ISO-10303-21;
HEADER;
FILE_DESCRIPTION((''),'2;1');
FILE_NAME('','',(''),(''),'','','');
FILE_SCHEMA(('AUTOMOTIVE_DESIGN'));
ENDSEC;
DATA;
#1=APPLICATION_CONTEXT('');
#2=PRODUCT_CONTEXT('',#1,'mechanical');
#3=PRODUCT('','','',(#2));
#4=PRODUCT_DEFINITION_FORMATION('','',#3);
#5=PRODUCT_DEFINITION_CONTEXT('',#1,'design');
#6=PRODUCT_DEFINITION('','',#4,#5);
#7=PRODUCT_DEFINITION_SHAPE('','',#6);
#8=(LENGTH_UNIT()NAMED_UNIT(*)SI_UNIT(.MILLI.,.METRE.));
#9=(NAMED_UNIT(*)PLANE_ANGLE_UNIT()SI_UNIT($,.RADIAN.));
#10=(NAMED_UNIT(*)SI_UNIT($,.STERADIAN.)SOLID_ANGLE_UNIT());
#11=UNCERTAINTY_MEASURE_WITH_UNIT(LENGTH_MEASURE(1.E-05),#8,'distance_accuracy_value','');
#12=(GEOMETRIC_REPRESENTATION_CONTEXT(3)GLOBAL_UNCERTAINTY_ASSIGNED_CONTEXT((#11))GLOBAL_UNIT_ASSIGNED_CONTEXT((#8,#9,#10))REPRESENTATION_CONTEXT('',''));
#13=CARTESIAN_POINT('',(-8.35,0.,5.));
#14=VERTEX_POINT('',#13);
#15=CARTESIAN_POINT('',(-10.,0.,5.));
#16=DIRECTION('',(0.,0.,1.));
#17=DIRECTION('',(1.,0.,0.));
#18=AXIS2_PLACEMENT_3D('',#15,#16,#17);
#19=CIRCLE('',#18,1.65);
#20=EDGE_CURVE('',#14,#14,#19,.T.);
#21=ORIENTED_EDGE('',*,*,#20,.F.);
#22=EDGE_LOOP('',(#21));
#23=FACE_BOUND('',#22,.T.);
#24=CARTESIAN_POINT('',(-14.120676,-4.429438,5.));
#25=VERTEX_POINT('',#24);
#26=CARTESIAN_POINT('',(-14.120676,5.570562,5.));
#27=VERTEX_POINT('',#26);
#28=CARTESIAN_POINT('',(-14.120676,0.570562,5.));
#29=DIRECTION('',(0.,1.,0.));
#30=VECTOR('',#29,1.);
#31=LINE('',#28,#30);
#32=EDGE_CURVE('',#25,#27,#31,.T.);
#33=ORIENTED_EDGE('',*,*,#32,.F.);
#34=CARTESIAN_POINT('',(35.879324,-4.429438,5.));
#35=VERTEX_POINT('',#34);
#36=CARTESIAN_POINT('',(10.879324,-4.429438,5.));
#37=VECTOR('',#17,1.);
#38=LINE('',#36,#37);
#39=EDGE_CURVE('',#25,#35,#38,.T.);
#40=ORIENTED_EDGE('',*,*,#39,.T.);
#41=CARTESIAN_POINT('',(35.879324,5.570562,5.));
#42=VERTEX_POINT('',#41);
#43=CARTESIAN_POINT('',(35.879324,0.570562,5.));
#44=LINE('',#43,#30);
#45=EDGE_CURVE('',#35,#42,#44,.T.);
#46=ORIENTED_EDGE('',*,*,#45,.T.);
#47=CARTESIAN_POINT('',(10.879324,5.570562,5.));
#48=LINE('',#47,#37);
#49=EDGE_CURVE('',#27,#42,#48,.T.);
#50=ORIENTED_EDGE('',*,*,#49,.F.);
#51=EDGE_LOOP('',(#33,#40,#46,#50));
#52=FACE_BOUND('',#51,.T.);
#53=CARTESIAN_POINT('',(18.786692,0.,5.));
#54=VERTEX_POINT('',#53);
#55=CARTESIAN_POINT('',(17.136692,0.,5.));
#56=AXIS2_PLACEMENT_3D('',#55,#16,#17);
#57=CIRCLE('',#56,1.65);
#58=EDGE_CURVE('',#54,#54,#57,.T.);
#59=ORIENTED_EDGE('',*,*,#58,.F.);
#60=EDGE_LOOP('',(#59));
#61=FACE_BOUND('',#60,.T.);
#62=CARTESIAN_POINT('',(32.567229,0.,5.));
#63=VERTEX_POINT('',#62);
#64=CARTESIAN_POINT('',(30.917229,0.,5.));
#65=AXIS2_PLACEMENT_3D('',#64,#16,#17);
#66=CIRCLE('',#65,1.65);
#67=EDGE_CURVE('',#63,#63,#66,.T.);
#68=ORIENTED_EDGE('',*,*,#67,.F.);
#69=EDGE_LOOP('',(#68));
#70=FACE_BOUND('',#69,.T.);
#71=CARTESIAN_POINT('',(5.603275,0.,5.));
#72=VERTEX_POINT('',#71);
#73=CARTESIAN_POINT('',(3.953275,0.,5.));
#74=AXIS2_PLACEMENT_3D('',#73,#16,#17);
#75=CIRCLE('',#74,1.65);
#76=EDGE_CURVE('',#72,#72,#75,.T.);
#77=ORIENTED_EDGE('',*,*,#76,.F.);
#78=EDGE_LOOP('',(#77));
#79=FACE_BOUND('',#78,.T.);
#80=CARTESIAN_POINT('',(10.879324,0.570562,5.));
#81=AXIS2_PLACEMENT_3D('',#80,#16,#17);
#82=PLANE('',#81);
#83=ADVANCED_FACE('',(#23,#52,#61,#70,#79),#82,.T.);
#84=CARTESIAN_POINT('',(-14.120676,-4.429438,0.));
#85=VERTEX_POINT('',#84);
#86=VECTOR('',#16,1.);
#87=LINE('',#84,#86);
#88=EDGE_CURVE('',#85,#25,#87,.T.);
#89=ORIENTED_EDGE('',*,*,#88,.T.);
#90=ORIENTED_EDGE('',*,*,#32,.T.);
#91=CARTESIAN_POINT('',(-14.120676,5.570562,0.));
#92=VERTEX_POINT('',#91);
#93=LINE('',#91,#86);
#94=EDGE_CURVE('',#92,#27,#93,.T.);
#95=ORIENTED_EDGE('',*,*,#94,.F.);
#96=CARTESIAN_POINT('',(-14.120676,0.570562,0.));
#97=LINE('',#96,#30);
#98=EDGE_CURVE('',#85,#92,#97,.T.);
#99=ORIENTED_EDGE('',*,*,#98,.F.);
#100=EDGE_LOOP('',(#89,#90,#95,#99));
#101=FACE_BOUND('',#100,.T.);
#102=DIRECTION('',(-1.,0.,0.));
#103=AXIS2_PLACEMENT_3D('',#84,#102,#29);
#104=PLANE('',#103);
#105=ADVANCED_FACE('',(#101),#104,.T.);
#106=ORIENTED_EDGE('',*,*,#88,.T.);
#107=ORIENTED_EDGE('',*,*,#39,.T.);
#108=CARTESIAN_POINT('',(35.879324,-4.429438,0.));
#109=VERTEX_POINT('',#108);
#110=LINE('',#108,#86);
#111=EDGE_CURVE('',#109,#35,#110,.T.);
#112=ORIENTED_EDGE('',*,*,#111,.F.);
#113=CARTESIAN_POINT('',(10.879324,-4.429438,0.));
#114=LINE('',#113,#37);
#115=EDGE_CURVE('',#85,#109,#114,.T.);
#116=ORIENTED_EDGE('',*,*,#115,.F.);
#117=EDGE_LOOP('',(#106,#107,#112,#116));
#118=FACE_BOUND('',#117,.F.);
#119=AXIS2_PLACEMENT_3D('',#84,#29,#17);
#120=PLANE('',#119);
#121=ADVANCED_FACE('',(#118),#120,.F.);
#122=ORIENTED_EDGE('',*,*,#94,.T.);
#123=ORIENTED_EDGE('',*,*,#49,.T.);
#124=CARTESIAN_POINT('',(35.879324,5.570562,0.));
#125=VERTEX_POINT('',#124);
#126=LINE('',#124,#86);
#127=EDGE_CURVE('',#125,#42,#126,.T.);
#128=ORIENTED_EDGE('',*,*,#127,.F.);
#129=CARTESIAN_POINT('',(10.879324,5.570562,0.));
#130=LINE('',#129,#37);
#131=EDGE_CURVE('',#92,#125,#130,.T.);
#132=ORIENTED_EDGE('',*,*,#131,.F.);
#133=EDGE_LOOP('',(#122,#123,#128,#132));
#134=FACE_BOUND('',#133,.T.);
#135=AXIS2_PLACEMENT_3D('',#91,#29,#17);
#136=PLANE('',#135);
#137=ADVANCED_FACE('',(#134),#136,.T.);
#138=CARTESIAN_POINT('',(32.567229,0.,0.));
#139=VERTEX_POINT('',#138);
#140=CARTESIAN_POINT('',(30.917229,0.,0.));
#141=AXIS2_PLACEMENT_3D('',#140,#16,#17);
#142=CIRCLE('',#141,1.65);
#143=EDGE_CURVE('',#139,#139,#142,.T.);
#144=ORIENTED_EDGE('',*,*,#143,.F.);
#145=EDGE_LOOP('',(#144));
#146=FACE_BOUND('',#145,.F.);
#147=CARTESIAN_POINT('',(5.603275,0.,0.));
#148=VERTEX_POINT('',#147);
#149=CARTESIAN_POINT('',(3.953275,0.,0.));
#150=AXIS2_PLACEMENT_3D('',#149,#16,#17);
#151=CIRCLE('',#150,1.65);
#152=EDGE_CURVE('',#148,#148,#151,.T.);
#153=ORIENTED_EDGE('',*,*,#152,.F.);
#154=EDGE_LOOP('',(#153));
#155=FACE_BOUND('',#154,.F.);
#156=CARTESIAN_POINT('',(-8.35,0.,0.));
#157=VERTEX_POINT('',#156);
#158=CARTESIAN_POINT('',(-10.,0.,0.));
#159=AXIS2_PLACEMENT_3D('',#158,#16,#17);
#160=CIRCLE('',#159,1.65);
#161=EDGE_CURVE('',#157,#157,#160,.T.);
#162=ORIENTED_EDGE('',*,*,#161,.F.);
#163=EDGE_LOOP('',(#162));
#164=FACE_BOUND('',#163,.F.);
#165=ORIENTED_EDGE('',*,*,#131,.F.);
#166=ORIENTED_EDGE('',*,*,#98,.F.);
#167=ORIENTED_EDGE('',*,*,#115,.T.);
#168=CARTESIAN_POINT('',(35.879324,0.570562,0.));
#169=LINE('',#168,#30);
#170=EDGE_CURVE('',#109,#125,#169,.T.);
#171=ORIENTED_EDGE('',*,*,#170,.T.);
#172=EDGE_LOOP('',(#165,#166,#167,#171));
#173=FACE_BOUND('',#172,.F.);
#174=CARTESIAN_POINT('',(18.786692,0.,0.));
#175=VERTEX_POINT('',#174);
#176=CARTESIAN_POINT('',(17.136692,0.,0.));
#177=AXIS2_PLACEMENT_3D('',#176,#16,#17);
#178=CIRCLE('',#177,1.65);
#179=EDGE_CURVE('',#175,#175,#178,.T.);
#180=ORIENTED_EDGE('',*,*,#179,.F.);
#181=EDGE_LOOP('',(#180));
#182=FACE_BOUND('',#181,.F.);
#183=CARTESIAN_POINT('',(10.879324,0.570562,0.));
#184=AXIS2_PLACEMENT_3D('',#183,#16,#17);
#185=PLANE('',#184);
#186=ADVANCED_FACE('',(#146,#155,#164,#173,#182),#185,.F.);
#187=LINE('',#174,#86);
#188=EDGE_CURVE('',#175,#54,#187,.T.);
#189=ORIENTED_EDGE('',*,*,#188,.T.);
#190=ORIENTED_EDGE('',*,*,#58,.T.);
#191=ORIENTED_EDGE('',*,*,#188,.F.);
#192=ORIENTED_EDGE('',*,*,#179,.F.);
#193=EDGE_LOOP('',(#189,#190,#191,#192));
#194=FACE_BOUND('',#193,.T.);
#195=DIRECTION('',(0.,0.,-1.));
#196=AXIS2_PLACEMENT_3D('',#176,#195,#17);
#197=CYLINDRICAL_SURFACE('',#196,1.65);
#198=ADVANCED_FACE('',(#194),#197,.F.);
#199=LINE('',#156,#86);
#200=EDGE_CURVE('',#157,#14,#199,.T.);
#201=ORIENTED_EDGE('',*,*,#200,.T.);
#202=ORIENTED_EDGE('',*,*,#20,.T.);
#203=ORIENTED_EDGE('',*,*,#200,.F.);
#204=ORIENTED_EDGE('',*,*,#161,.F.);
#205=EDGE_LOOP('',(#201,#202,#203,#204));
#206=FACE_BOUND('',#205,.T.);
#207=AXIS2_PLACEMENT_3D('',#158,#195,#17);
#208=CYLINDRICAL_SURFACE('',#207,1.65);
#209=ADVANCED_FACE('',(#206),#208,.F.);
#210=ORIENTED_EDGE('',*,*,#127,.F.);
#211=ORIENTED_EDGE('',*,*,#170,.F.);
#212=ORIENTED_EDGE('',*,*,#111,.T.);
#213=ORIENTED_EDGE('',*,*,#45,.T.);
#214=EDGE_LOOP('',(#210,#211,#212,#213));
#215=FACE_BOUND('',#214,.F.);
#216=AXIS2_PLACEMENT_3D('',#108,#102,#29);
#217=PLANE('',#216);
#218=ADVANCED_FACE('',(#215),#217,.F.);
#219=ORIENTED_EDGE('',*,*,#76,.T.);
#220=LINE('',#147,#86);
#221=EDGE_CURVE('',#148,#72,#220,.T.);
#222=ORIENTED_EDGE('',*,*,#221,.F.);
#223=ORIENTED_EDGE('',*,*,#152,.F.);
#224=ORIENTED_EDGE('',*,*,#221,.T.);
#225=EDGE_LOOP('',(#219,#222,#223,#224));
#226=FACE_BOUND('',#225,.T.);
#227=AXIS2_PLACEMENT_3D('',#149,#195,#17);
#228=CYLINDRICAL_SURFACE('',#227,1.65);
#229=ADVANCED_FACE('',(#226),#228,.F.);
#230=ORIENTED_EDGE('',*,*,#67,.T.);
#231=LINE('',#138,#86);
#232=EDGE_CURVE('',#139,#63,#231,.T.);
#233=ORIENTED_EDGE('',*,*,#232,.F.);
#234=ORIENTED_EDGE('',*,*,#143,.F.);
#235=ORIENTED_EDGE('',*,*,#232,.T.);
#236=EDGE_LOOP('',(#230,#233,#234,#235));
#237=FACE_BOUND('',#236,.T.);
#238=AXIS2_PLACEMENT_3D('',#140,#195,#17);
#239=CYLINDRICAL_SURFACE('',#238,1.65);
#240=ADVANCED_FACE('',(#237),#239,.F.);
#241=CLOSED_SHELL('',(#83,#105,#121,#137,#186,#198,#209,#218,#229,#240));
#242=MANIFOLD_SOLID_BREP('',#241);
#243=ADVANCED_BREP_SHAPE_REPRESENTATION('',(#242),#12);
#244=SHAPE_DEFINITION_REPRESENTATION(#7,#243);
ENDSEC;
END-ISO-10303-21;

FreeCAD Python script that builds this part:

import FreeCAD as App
import Part
import Sketcher

V = App.Vector


def add_polygon(sketch, points):
    """Adds a closed chain of lines whose ends are joined by coincident constraints."""
    first, n = sketch.GeometryCount, len(points)
    for a, b in zip(points, points[1:] + points[:1]):
        sketch.addGeometry(Part.LineSegment(App.Vector(*a, 0), App.Vector(*b, 0)), False)
    for i in range(n):
        sketch.addConstraint(Sketcher.Constraint("Coincident", first + i, 2, first + (i + 1) % n, 1))

doc = App.newDocument("Part")
body = doc.addObject("PartDesign::Body", "Body")

# Sketch on XY plane
sketch1 = doc.addObject("Sketcher::SketchObject", "Sketch")
body.addObject(sketch1)
sketch1.AttachmentSupport = (doc.XY_Plane, [""])
sketch1.MapMode = "FlatFace"
add_polygon(sketch1, [(-14.1, 5.6), (-14.1, -4.4), (35.9, -4.4), (35.9, 5.6)])  # lines 0-3
sketch1.addGeometry(Part.Circle(V(-10, 0, 0), V(0, 0, 1), 1.6), False)  # 4
sketch1.addGeometry(Part.Circle(V(4, 0, 0), V(0, 0, 1), 1.6), False)  # 5
sketch1.addGeometry(Part.Circle(V(17.1, 0, 0), V(0, 0, 1), 1.6), False)  # 6
sketch1.addGeometry(Part.Circle(V(30.9, 0, 0), V(0, 0, 1), 1.6), False)  # 7
sketch1.addConstraint([
    Sketcher.Constraint("Vertical", 0),
    Sketcher.Constraint("Horizontal", 1),
    Sketcher.Constraint("Vertical", 2),
    Sketcher.Constraint("Horizontal", 3),
    Sketcher.Constraint("Equal", 4, 5),
    Sketcher.Constraint("Equal", 5, 6),
    Sketcher.Constraint("Equal", 6, 7),
    Sketcher.Constraint("PointOnObject", 4, 3, -1),
    Sketcher.Constraint("PointOnObject", 5, 3, -1),
    Sketcher.Constraint("PointOnObject", 6, 3, -1),
    Sketcher.Constraint("PointOnObject", 7, 3, -1),
    Sketcher.Constraint("Diameter", 4, 3.3),
    Sketcher.Constraint("DistanceX", 1, 1, 1, 2, 50.0),
    Sketcher.Constraint("DistanceY", 0, 2, 0, 1, 10.0),
    Sketcher.Constraint("DistanceX", 4, 3, -1, 1, 10.0),
    Sketcher.Constraint("DistanceX", -1, 1, 6, 3, 17.136692),
    Sketcher.Constraint("DistanceX", -1, 1, 7, 3, 30.917229),
    Sketcher.Constraint("DistanceY", 0, 2, -1, 1, 4.429438),
    Sketcher.Constraint("DistanceX", 0, 2, 5, 3, 18.073951),
    Sketcher.Constraint("DistanceX", 6, 3, 1, 2, 18.742632),
])
pad1 = doc.addObject("PartDesign::Pad", "Pad")
body.addObject(pad1)
pad1.Profile = sketch1
pad1.Length = 5

doc.recompute()
